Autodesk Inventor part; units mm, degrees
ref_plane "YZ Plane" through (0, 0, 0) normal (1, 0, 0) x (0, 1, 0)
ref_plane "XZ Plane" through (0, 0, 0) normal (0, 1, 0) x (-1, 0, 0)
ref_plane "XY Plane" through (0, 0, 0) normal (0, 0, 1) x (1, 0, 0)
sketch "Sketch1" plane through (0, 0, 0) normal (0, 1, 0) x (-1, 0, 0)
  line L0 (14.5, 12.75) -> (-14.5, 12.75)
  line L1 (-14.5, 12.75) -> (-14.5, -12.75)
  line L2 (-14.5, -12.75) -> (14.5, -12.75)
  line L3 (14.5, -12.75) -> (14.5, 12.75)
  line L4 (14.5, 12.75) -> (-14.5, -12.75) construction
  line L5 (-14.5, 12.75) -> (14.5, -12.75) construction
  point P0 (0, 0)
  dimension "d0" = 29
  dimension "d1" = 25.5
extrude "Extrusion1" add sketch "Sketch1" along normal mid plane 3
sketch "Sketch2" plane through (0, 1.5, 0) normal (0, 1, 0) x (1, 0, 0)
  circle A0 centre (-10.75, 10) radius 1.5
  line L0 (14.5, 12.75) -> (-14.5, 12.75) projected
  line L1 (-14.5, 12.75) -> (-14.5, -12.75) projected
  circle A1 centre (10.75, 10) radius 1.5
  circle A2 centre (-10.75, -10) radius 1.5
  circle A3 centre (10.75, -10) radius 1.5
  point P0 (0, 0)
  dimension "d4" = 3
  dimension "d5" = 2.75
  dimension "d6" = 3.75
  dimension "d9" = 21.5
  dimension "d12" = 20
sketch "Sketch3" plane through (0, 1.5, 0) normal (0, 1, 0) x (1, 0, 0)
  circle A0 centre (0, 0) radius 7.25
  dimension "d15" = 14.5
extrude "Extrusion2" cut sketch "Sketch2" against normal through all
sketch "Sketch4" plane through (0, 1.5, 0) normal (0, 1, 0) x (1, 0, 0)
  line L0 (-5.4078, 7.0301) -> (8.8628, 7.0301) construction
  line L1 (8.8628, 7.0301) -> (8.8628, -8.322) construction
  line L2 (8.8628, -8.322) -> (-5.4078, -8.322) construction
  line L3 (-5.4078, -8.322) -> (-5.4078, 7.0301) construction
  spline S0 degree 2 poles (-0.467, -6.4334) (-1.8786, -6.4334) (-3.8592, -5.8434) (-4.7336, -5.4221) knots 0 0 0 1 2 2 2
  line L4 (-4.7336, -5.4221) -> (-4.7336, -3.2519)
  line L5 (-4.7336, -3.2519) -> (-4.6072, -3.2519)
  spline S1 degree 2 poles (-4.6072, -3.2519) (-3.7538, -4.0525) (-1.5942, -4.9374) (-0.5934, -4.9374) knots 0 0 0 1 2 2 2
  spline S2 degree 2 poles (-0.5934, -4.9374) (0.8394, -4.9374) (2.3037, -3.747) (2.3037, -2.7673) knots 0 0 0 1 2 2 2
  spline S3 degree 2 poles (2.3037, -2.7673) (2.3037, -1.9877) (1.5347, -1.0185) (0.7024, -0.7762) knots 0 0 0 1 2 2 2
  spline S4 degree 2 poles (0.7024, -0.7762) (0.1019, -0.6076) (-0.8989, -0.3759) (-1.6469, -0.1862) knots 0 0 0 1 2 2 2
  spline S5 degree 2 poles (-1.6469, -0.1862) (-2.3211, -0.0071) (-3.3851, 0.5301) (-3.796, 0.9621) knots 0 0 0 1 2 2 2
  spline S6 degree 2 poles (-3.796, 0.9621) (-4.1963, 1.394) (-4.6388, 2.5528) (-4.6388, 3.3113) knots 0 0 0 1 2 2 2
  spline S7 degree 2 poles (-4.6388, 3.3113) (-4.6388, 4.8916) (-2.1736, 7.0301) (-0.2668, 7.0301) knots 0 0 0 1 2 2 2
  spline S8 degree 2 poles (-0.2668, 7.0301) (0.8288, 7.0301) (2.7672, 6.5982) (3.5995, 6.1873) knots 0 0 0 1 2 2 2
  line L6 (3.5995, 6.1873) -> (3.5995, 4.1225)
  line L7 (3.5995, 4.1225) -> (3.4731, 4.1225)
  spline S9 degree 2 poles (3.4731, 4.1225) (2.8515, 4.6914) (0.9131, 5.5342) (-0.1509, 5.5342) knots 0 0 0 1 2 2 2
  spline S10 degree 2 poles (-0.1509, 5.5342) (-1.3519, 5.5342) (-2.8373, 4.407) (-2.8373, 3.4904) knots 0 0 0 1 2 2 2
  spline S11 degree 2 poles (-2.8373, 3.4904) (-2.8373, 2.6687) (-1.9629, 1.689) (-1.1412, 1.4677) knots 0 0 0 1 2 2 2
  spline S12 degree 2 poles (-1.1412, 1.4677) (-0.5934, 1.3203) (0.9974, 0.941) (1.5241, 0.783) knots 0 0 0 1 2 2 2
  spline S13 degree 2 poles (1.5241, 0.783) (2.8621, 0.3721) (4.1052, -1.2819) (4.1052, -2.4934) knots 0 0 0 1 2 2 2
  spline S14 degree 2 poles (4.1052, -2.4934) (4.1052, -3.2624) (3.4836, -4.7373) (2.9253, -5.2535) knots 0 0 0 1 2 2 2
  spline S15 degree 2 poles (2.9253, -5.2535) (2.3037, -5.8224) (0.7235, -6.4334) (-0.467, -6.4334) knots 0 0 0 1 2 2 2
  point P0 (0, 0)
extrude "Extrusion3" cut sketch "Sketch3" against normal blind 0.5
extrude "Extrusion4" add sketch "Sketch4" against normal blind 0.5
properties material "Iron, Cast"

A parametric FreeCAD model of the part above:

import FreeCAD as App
import Part
import Sketcher


def add_polygon(sketch, points):
    """Adds a closed chain of lines whose ends are joined by coincident constraints."""
    first, n = sketch.GeometryCount, len(points)
    for a, b in zip(points, points[1:] + points[:1]):
        sketch.addGeometry(Part.LineSegment(App.Vector(*a, 0), App.Vector(*b, 0)), False)
    for i in range(n):
        sketch.addConstraint(Sketcher.Constraint("Coincident", first + i, 2, first + (i + 1) % n, 1))

doc = App.newDocument("Part")
params = doc.addObject("Spreadsheet::Sheet", "Params")
for row, (alias, value) in enumerate([
    ("sketch1_width", "29 mm"),
    ("sketch1_height", "25.5 mm"),
    ("pad1_length", "3 mm"),
    ("sketch2_diameter", "3 mm"),
    ("sketch3_diameter", "14.5 mm"),
    ("pocket2_length", "0.5 mm"),
    ("pad2_length", "0.5 mm"),
], start=1):
    params.set(f"A{row}", alias)
    params.set(f"B{row}", "=" + value)
    params.setAlias(f"B{row}", alias)

body = doc.addObject("PartDesign::Body", "Body")

# Sketch on XZ plane
sketch1 = body.newObject("Sketcher::SketchObject", "Sketch")
sketch1.AttachmentSupport = (doc.getObject("XZ_Plane"), [""])
sketch1.MapMode = "FlatFace"
add_polygon(sketch1, [(-14, -13), (-14, 13), (14, 13), (14, -13)])  # lines 0-3
sketch1.addConstraint([
    Sketcher.Constraint("Vertical", 0),
    Sketcher.Constraint("Horizontal", 1),
    Sketcher.Constraint("Vertical", 2),
    Sketcher.Constraint("Horizontal", 3),
    Sketcher.Constraint("Symmetric", 0, 2, 2, 2, -1, 1),
    Sketcher.Constraint("DistanceX", 1, 1, 1, 2, 29.0),
    Sketcher.Constraint("DistanceY", 0, 1, 0, 2, 25.5),
])
sketch1.setExpression("Constraints[9]", "Params.sketch1_width")
sketch1.setExpression("Constraints[10]", "Params.sketch1_height")
pad1 = body.newObject("PartDesign::Pad", "Pad")
pad1.Profile = sketch1
pad1.setExpression("Length", "Params.pad1_length")
pad1.Midplane = True

# Sketch on XZ plane
sketch2 = body.newObject("Sketcher::SketchObject", "Sketch001")
sketch2.AttachmentSupport = (doc.getObject("XZ_Plane"), [""])
sketch2.MapMode = "FlatFace"
sketch2.AttachmentOffset = App.Placement(App.Vector(0, 0, -1.5), App.Rotation())
sketch2.addGeometry([
    Part.Circle(App.Vector(-10.8, -10, 0), App.Vector(0, 0, 1), 1.5),
    Part.Circle(App.Vector(10.8, -10, 0), App.Vector(0, 0, 1), 1.5),
    Part.Circle(App.Vector(-10.8, 10, 0), App.Vector(0, 0, 1), 1.5),
    Part.Circle(App.Vector(10.8, 10, 0), App.Vector(0, 0, 1), 1.5),
], False)
sketch2.addConstraint([
    Sketcher.Constraint("Equal", 0, 1),
    Sketcher.Constraint("Equal", 1, 2),
    Sketcher.Constraint("Equal", 2, 3),
    Sketcher.Constraint("Symmetric", 1, 3, 2, 3, -1, 1),
    Sketcher.Constraint("Symmetric", 0, 3, 3, 3, -1, 1),
    Sketcher.Constraint("Symmetric", 0, 3, 1, 3, -2),
    Sketcher.Constraint("Diameter", 0, 3.0),
    Sketcher.Constraint("DistanceY", 0, 3, 2, 3, 20.0),
    Sketcher.Constraint("DistanceX", 0, 3, 1, 3, 21.5),
])
sketch2.setExpression("Constraints[6]", "Params.sketch2_diameter")
pocket1 = body.newObject("PartDesign::Pocket", "Pocket")
pocket1.Profile = sketch2
pocket1.Type = "ThroughAll"
pocket1.Reversed = True

# Sketch on XZ plane
sketch3 = body.newObject("Sketcher::SketchObject", "Sketch002")
sketch3.AttachmentSupport = (doc.getObject("XZ_Plane"), [""])
sketch3.MapMode = "FlatFace"
sketch3.AttachmentOffset = App.Placement(App.Vector(0, 0, -1.5), App.Rotation())
sketch3.addGeometry(Part.Circle(App.Vector(0, 0, 0), App.Vector(0, 0, 1), 7), False)
sketch3.addConstraint([
    Sketcher.Constraint("Coincident", 0, 3, -1, 1),
    Sketcher.Constraint("Diameter", 0, 14.5),
])
sketch3.setExpression("Constraints[1]", "Params.sketch3_diameter")
pocket2 = body.newObject("PartDesign::Pocket", "Pocket001")
pocket2.Profile = sketch3
pocket2.setExpression("Length", "Params.pocket2_length")
pocket2.Reversed = True

# Sketch on XZ plane
sketch4 = body.newObject("Sketcher::SketchObject", "Sketch003")
sketch4.AttachmentSupport = (doc.getObject("XZ_Plane"), [""])
sketch4.MapMode = "FlatFace"
sketch4.AttachmentOffset = App.Placement(App.Vector(0, 0, -1.5), App.Rotation())
sketch4.addGeometry([
    Part.BSplineCurve([App.Vector(-0.467, 6.4334, 0), App.Vector(-1.8786, 6.4334, 0), App.Vector(-3.8592, 5.8434, 0), App.Vector(-4.7336, 5.4221, 0)], [3, 1, 3], [0, 1, 2], False, 2, [1, 1, 1, 1], False),  # 0
    Part.BSplineCurve([App.Vector(2.9253, 5.2535, 0), App.Vector(2.3037, 5.8224, 0), App.Vector(0.7235, 6.4334, 0), App.Vector(-0.467, 6.4334, 0)], [3, 1, 3], [0, 1, 2], False, 2, [1, 1, 1, 1], False),  # 1
    Part.BSplineCurve([App.Vector(4.1052, 2.4934, 0), App.Vector(4.1052, 3.2624, 0), App.Vector(3.4836, 4.7373, 0), App.Vector(2.9253, 5.2535, 0)], [3, 1, 3], [0, 1, 2], False, 2, [1, 1, 1, 1], False),  # 2
    Part.BSplineCurve([App.Vector(1.5241, -0.783, 0), App.Vector(2.8621, -0.3721, 0), App.Vector(4.1052, 1.2819, 0), App.Vector(4.1052, 2.4934, 0)], [3, 1, 3], [0, 1, 2], False, 2, [1, 1, 1, 1], False),  # 3
    Part.BSplineCurve([App.Vector(-1.1412, -1.4677, 0), App.Vector(-0.5934, -1.3203, 0), App.Vector(0.9974, -0.941, 0), App.Vector(1.5241, -0.783, 0)], [3, 1, 3], [0, 1, 2], False, 2, [1, 1, 1, 1], False),  # 4
    Part.BSplineCurve([App.Vector(-2.8373, -3.4904, 0), App.Vector(-2.8373, -2.6687, 0), App.Vector(-1.9629, -1.689, 0), App.Vector(-1.1412, -1.4677, 0)], [3, 1, 3], [0, 1, 2], False, 2, [1, 1, 1, 1], False),  # 5
    Part.BSplineCurve([App.Vector(-0.1509, -5.5342, 0), App.Vector(-1.3519, -5.5342, 0), App.Vector(-2.8373, -4.407, 0), App.Vector(-2.8373, -3.4904, 0)], [3, 1, 3], [0, 1, 2], False, 2, [1, 1, 1, 1], False),  # 6
    Part.BSplineCurve([App.Vector(3.4731, -4.1225, 0), App.Vector(2.8515, -4.6914, 0), App.Vector(0.9131, -5.5342, 0), App.Vector(-0.1509, -5.5342, 0)], [3, 1, 3], [0, 1, 2], False, 2, [1, 1, 1, 1], False),  # 7
    Part.LineSegment(App.Vector(3.4731, -4.1225, 0), App.Vector(3.5995, -4.1225, 0)),  # 8
    Part.LineSegment(App.Vector(3.5995, -4.1225, 0), App.Vector(3.5995, -6.1873, 0)),  # 9
    Part.BSplineCurve([App.Vector(-0.2668, -7.0301, 0), App.Vector(0.8288, -7.0301, 0), App.Vector(2.7672, -6.5982, 0), App.Vector(3.5995, -6.1873, 0)], [3, 1, 3], [0, 1, 2], False, 2, [1, 1, 1, 1], False),  # 10
    Part.BSplineCurve([App.Vector(-4.6388, -3.3113, 0), App.Vector(-4.6388, -4.8916, 0), App.Vector(-2.1736, -7.0301, 0), App.Vector(-0.2668, -7.0301, 0)], [3, 1, 3], [0, 1, 2], False, 2, [1, 1, 1, 1], False),  # 11
    Part.BSplineCurve([App.Vector(-3.796, -0.9621, 0), App.Vector(-4.1963, -1.394, 0), App.Vector(-4.6388, -2.5528, 0), App.Vector(-4.6388, -3.3113, 0)], [3, 1, 3], [0, 1, 2], False, 2, [1, 1, 1, 1], False),  # 12
    Part.BSplineCurve([App.Vector(-1.6469, 0.1862, 0), App.Vector(-2.3211, 0.0071, 0), App.Vector(-3.3851, -0.5301, 0), App.Vector(-3.796, -0.9621, 0)], [3, 1, 3], [0, 1, 2], False, 2, [1, 1, 1, 1], False),  # 13
    Part.BSplineCurve([App.Vector(0.7024, 0.7762, 0), App.Vector(0.1019, 0.6076, 0), App.Vector(-0.8989, 0.3759, 0), App.Vector(-1.6469, 0.1862, 0)], [3, 1, 3], [0, 1, 2], False, 2, [1, 1, 1, 1], False),  # 14
    Part.BSplineCurve([App.Vector(2.3037, 2.7673, 0), App.Vector(2.3037, 1.9877, 0), App.Vector(1.5347, 1.0185, 0), App.Vector(0.7024, 0.7762, 0)], [3, 1, 3], [0, 1, 2], False, 2, [1, 1, 1, 1], False),  # 15
    Part.BSplineCurve([App.Vector(-0.5934, 4.9374, 0), App.Vector(0.8394, 4.9374, 0), App.Vector(2.3037, 3.747, 0), App.Vector(2.3037, 2.7673, 0)], [3, 1, 3], [0, 1, 2], False, 2, [1, 1, 1, 1], False),  # 16
    Part.BSplineCurve([App.Vector(-4.6072, 3.2519, 0), App.Vector(-3.7538, 4.0525, 0), App.Vector(-1.5942, 4.9374, 0), App.Vector(-0.5934, 4.9374, 0)], [3, 1, 3], [0, 1, 2], False, 2, [1, 1, 1, 1], False),  # 17
    Part.LineSegment(App.Vector(-4.6072, 3.2519, 0), App.Vector(-4.7336, 3.2519, 0)),  # 18
    Part.LineSegment(App.Vector(-4.7336, 3.2519, 0), App.Vector(-4.7336, 5.4221, 0)),  # 19
], False)
sketch4.addConstraint([
    Sketcher.Constraint("Block", 0),
    Sketcher.Constraint("Block", 1),
    Sketcher.Constraint("Block", 2),
    Sketcher.Constraint("Block", 3),
    Sketcher.Constraint("Block", 4),
    Sketcher.Constraint("Block", 5),
    Sketcher.Constraint("Block", 6),
    Sketcher.Constraint("Block", 7),
    Sketcher.Constraint("Block", 10),
    Sketcher.Constraint("Block", 11),
    Sketcher.Constraint("Block", 12),
    Sketcher.Constraint("Block", 13),
    Sketcher.Constraint("Block", 14),
    Sketcher.Constraint("Block", 15),
    Sketcher.Constraint("Block", 16),
    Sketcher.Constraint("Block", 17),
    Sketcher.Constraint("Coincident", 7, 1, 8, 1),
    Sketcher.Constraint("Coincident", 8, 2, 9, 1),
    Sketcher.Constraint("Coincident", 9, 2, 10, 2),
    Sketcher.Constraint("Coincident", 17, 1, 18, 1),
    Sketcher.Constraint("Coincident", 18, 2, 19, 1),
    Sketcher.Constraint("Coincident", 19, 2, 0, 2),
    Sketcher.Constraint("Horizontal", 8),
    Sketcher.Constraint("Vertical", 9),
    Sketcher.Constraint("Horizontal", 18),
    Sketcher.Constraint("Vertical", 19),
])
pad2 = body.newObject("PartDesign::Pad", "Pad001")
pad2.Profile = sketch4
pad2.setExpression("Length", "Params.pad2_length")

doc.recompute()
